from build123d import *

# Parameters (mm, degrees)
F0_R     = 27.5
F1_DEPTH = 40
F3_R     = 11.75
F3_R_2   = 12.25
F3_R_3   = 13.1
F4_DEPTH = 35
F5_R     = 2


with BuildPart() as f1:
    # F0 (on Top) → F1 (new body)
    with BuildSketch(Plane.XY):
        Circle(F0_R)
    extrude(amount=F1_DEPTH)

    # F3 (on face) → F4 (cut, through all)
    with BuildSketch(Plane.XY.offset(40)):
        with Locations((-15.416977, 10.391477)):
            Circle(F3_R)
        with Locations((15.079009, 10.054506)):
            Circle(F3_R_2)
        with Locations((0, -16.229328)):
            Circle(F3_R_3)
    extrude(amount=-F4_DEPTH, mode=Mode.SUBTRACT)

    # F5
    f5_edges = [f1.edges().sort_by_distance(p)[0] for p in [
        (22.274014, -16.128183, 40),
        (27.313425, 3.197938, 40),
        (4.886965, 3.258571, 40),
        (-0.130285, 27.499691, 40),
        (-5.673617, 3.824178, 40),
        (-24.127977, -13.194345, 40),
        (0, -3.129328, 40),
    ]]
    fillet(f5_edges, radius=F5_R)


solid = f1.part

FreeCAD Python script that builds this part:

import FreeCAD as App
import Part
import Sketcher
from FreeCAD import Vector
Q = App.Units.Quantity


def edges_at(feature, points):
    """Names of the edges that pass closest to the given points."""
    edges = feature.Shape.Edges
    near = lambda p: min(range(len(edges)), key=lambda i: edges[i].distToShape(Part.Vertex(*p))[0])
    return sorted({f"Edge{near(p) + 1}" for p in points})

doc = App.newDocument("Part")
body = doc.addObject("PartDesign::Body", "Body")

# Sketch on XY plane
sketch1 = body.newObject("Sketcher::SketchObject", "Sketch")
sketch1.AttachmentSupport = (doc.getObject("XY_Plane"), [""])
sketch1.MapMode = "FlatFace"
sketch1.addGeometry(Part.Circle(Vector(0, 0, 0), Vector(0, 0, 1), 28), False)
sketch1.addConstraint(Sketcher.Constraint("Coincident", 0, 3, -1, 1))
sketch1.addConstraint(Sketcher.Constraint("Diameter", 0, Q("55 mm")))
pad1 = body.newObject("PartDesign::Pad", "Pad")
pad1.Profile = sketch1
pad1.Length = 40

# Sketch on XY plane
sketch2 = body.newObject("Sketcher::SketchObject", "Sketch001")
sketch2.AttachmentSupport = (doc.getObject("XY_Plane"), [""])
sketch2.MapMode = "FlatFace"
sketch2.AttachmentOffset = App.Placement(Vector(0, 0, 40), App.Rotation())
sketch2.addGeometry(Part.Circle(Vector(-15, 10, 0), Vector(0, 0, 1), 12), False)
sketch2.addGeometry(Part.Circle(Vector(15, 10, 0), Vector(0, 0, 1), 12), False)
sketch2.addGeometry(Part.Circle(Vector(0, -16, 0), Vector(0, 0, 1), 13), False)
sketch2.addConstraint(Sketcher.Constraint("PointOnObject", 2, 3, -2))
sketch2.addConstraint(Sketcher.Constraint("Diameter", 0, Q("23.5 mm")))
sketch2.addConstraint(Sketcher.Constraint("Diameter", 1, Q("24.5 mm")))
sketch2.addConstraint(Sketcher.Constraint("Diameter", 2, Q("26.2 mm")))
sketch2.addConstraint(Sketcher.Constraint("DistanceX", -1, 1, 1, 3, Q("15.079009 mm")))
sketch2.addConstraint(Sketcher.Constraint("DistanceY", 1, 3, 0, 3, Q("0.336971 mm")))
sketch2.addConstraint(Sketcher.Constraint("DistanceX", 0, 3, -1, 1, Q("15.416977 mm")))
sketch2.addConstraint(Sketcher.Constraint("DistanceY", -1, 1, 0, 3, Q("10.391477 mm")))
sketch2.addConstraint(Sketcher.Constraint("DistanceY", 2, 3, -1, 1, Q("16.229328 mm")))
pocket1 = body.newObject("PartDesign::Pocket", "Pocket")
pocket1.Profile = sketch2
pocket1.Length = 35
doc.recompute()

fillet = body.newObject("PartDesign::Fillet", "Fillet")
fillet.Base = (pocket1, edges_at(pocket1, [
    (22.274, -16.128, 40),
    (27.313, 3.198, 40),
    (4.887, 3.259, 40),
    (-0.13, 27.5, 40),
    (-5.674, 3.824, 40),
    (-24.128, -13.194, 40),
    (0, -3.129, 40),
]))
fillet.Radius = 2

doc.recompute()
